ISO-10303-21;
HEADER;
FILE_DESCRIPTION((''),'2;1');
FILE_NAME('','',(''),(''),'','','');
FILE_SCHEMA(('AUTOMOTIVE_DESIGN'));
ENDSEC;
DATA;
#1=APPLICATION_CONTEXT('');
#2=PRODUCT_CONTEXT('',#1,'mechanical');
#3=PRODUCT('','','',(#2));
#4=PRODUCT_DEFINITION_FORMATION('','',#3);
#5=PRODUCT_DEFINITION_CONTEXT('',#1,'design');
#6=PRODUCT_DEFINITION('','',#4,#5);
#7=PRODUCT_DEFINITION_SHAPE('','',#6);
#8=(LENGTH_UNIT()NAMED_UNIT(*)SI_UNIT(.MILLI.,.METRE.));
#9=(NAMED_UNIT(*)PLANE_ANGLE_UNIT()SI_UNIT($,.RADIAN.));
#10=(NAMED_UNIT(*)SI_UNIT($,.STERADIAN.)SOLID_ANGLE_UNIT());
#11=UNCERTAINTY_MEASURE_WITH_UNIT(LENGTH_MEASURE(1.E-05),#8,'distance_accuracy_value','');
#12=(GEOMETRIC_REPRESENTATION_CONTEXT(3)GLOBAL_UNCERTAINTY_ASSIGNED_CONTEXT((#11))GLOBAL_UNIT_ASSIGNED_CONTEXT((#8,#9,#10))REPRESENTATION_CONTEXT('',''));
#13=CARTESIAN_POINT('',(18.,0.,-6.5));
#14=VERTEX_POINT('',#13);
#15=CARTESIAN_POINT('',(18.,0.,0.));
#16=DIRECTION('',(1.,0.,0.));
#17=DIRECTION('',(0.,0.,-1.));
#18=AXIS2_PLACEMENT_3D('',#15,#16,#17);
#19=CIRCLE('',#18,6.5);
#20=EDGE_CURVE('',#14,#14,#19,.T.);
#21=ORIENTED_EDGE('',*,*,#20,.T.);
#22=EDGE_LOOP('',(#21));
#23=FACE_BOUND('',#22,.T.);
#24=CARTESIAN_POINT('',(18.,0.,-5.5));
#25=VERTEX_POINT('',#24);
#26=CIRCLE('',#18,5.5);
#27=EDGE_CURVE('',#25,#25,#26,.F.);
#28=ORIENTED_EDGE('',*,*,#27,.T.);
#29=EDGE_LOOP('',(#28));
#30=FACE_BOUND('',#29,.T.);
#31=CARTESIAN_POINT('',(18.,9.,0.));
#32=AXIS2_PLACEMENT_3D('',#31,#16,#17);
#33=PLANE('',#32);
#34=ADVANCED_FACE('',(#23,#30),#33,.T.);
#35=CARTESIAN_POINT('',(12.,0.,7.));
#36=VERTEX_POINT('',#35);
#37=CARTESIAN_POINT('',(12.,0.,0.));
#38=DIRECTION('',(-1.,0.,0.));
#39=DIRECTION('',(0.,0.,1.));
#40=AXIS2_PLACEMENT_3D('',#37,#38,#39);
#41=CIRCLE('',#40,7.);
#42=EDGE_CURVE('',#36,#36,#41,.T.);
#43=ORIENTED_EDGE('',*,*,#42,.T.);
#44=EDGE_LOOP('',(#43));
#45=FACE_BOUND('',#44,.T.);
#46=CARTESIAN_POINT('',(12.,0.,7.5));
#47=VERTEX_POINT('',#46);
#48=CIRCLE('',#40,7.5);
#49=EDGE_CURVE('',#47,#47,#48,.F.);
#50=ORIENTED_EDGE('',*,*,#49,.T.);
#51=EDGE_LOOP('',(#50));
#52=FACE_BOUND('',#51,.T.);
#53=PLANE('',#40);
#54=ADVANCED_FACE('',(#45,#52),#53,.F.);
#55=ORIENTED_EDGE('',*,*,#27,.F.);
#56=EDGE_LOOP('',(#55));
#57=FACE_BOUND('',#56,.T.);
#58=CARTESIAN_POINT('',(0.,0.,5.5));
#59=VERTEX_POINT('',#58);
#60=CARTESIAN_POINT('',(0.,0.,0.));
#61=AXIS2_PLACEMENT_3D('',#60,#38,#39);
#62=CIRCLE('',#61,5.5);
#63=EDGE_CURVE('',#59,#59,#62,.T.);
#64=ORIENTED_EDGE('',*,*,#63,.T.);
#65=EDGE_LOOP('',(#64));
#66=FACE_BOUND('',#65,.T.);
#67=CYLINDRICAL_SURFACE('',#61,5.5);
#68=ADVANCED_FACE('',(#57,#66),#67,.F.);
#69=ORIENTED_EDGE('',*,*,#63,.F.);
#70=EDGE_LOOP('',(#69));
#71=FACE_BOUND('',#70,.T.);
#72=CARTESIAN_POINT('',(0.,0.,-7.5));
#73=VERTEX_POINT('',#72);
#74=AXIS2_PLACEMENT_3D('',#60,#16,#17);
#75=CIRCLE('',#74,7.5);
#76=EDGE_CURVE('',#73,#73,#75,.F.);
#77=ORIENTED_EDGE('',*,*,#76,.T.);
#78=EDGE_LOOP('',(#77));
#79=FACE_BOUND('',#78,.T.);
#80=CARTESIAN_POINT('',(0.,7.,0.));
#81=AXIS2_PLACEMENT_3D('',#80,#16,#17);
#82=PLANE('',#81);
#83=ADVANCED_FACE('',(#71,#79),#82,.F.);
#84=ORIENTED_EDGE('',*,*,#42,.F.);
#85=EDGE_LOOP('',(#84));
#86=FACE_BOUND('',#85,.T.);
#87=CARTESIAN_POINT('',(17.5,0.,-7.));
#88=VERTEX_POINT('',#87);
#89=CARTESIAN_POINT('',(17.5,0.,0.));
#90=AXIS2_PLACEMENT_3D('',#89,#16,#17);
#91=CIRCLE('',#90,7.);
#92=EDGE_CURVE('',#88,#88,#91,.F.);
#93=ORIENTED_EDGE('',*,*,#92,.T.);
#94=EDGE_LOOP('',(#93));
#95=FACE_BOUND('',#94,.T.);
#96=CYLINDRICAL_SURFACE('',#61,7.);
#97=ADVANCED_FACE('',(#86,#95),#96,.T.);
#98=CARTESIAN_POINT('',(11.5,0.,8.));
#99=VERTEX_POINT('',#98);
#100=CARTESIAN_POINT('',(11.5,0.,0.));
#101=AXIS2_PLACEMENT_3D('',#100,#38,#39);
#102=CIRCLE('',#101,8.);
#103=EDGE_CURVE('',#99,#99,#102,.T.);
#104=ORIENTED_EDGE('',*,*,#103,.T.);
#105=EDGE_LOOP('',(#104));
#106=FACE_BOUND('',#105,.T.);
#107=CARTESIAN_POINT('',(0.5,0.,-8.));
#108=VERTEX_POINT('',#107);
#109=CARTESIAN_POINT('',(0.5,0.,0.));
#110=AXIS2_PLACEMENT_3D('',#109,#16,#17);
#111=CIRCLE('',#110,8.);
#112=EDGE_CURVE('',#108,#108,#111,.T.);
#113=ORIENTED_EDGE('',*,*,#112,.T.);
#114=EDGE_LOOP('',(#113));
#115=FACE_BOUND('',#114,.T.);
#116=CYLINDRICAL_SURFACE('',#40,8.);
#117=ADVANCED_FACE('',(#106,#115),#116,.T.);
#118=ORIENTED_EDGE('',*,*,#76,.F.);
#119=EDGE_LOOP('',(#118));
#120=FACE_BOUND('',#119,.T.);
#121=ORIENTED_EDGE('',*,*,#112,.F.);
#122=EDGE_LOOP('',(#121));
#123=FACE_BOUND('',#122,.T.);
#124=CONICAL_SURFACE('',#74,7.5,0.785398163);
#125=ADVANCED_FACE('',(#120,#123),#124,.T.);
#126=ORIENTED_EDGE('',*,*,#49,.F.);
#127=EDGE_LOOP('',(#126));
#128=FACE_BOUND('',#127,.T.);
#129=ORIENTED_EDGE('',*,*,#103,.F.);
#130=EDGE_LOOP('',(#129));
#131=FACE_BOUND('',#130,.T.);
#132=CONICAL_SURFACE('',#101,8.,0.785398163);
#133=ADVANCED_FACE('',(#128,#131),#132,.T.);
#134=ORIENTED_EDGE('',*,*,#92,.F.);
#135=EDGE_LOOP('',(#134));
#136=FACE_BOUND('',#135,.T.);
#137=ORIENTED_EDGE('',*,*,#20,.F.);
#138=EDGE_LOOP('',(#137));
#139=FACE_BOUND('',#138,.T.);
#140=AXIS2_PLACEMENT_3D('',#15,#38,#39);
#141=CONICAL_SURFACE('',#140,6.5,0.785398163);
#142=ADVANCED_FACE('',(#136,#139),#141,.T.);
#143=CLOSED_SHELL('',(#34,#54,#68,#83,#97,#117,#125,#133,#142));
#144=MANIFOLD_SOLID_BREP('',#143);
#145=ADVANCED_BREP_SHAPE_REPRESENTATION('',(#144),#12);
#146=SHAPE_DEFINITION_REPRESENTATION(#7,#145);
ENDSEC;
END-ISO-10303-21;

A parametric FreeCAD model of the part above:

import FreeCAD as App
import Part
import Sketcher

V = App.Vector
Q = App.Units.Quantity


def edges_at(feature, points):
    """Names of the edges that pass closest to the given points."""
    edges = feature.Shape.Edges
    near = lambda p: min(range(len(edges)), key=lambda i: edges[i].distToShape(Part.Vertex(*p))[0])
    return sorted({f"Edge{near(p) + 1}" for p in points})

doc = App.newDocument("Part")
body = doc.addObject("PartDesign::Body", "Body")

sketch1 = doc.addObject("Sketcher::SketchObject", "Sketch")
body.addObject(sketch1)
sketch1.AttachmentSupport = (doc.XY_Plane, [""])
sketch1.MapMode = "FlatFace"
sketch1.addGeometry(Part.LineSegment(V(0, 5.5, 0), V(20, 5.5, 0)), False)
sketch1.addGeometry(Part.LineSegment(V(20, 5.5, 0), V(20, 9, 0)), False)
sketch1.addGeometry(Part.LineSegment(V(20, 9, 0), V(18, 9, 0)), False)
sketch1.addGeometry(Part.LineSegment(V(18, 9, 0), V(18, 7, 0)), False)
sketch1.addGeometry(Part.LineSegment(V(18, 7, 0), V(0, 7, 0)), False)
sketch1.addGeometry(Part.LineSegment(V(0, 7, 0), V(0, 5.5, 0)), False)
sketch1.addConstraint(Sketcher.Constraint("Coincident", 0, 2, 1, 1))
sketch1.addConstraint(Sketcher.Constraint("Coincident", 1, 2, 2, 1))
sketch1.addConstraint(Sketcher.Constraint("Coincident", 2, 2, 3, 1))
sketch1.addConstraint(Sketcher.Constraint("Coincident", 3, 2, 4, 1))
sketch1.addConstraint(Sketcher.Constraint("Coincident", 4, 2, 5, 1))
sketch1.addConstraint(Sketcher.Constraint("Coincident", 5, 2, 0, 1))
sketch1.addConstraint(Sketcher.Constraint("Horizontal", 0))
sketch1.addConstraint(Sketcher.Constraint("Vertical", 1))
sketch1.addConstraint(Sketcher.Constraint("Horizontal", 2))
sketch1.addConstraint(Sketcher.Constraint("Vertical", 3))
sketch1.addConstraint(Sketcher.Constraint("Horizontal", 4))
sketch1.addConstraint(Sketcher.Constraint("Vertical", 5))
sketch1.addConstraint(Sketcher.Constraint("PointOnObject", 4, 2, -2))
sketch1.addConstraint(Sketcher.Constraint("Equal", 2, 3))
sketch1.addConstraint(Sketcher.Constraint("DistanceX", 0, 1, 0, 2, Q("20 mm")))
sketch1.addConstraint(Sketcher.Constraint("DistanceX", 2, 2, 2, 1, Q("2 mm")))
sketch1.addConstraint(Sketcher.Constraint("DistanceY", 1, 1, 1, 2, Q("3.5 mm")))
sketch1.addConstraint(Sketcher.Constraint("DistanceY", -1, 1, 1, 2, Q("9 mm")))
revolution = doc.addObject("PartDesign::Revolution", "Revolution")
body.addObject(revolution)
revolution.Profile = sketch1
revolution.ReferenceAxis = (sketch1, ["H_Axis"])
revolution.Angle = 360

sketch2 = doc.addObject("Sketcher::SketchObject", "Sketch001")
body.addObject(sketch2)
sketch2.AttachmentSupport = (doc.YZ_Plane, [""])
sketch2.MapMode = "FlatFace"
sketch2.AttachmentOffset = App.Placement(V(0, 0, 18), App.Rotation())
sketch2.addGeometry(Part.Circle(V(0, 0, 0), V(0, 0, 1), 9), False)
sketch2.addConstraint(Sketcher.Constraint("Coincident", 0, 3, -1, 1))
sketch2.addConstraint(Sketcher.Constraint("Diameter", 0, Q("18 mm")))
pocket1 = doc.addObject("PartDesign::Pocket", "Pocket")
body.addObject(pocket1)
pocket1.Profile = sketch2
pocket1.Length = 2
pocket1.Reversed = True

sketch3 = doc.addObject("Sketcher::SketchObject", "Sketch002")
body.addObject(sketch3)
sketch3.AttachmentSupport = (doc.YZ_Plane, [""])
sketch3.MapMode = "FlatFace"
sketch3.AttachmentOffset = App.Placement(V(0, 0, 12), App.Rotation())
sketch3.addGeometry(Part.Circle(V(0, 0, 0), V(0, 0, 1), 8), False)
sketch3.addGeometry(Part.Circle(V(0, 0, 0), V(0, 0, 1), 6), False)
sketch3.addConstraint(Sketcher.Constraint("Coincident", 0, 3, -1, 1))
sketch3.addConstraint(Sketcher.Constraint("Coincident", 1, 3, -1, 1))
sketch3.addConstraint(Sketcher.Constraint("Diameter", 0, Q("16 mm")))
sketch3.addConstraint(Sketcher.Constraint("Diameter", 1, Q("11 mm")))
pad1 = doc.addObject("PartDesign::Pad", "Pad")
body.addObject(pad1)
pad1.Profile = sketch3
pad1.Length = 12
pad1.Reversed = True
doc.recompute()

chamfer = doc.addObject("PartDesign::Chamfer", "Chamfer")
body.addObject(chamfer)
chamfer.Base = (pad1, edges_at(pad1, [(18, 0, -7), (12, 0, -8), (0, 0, -8)]))
chamfer.Size = 0.5

doc.recompute()
